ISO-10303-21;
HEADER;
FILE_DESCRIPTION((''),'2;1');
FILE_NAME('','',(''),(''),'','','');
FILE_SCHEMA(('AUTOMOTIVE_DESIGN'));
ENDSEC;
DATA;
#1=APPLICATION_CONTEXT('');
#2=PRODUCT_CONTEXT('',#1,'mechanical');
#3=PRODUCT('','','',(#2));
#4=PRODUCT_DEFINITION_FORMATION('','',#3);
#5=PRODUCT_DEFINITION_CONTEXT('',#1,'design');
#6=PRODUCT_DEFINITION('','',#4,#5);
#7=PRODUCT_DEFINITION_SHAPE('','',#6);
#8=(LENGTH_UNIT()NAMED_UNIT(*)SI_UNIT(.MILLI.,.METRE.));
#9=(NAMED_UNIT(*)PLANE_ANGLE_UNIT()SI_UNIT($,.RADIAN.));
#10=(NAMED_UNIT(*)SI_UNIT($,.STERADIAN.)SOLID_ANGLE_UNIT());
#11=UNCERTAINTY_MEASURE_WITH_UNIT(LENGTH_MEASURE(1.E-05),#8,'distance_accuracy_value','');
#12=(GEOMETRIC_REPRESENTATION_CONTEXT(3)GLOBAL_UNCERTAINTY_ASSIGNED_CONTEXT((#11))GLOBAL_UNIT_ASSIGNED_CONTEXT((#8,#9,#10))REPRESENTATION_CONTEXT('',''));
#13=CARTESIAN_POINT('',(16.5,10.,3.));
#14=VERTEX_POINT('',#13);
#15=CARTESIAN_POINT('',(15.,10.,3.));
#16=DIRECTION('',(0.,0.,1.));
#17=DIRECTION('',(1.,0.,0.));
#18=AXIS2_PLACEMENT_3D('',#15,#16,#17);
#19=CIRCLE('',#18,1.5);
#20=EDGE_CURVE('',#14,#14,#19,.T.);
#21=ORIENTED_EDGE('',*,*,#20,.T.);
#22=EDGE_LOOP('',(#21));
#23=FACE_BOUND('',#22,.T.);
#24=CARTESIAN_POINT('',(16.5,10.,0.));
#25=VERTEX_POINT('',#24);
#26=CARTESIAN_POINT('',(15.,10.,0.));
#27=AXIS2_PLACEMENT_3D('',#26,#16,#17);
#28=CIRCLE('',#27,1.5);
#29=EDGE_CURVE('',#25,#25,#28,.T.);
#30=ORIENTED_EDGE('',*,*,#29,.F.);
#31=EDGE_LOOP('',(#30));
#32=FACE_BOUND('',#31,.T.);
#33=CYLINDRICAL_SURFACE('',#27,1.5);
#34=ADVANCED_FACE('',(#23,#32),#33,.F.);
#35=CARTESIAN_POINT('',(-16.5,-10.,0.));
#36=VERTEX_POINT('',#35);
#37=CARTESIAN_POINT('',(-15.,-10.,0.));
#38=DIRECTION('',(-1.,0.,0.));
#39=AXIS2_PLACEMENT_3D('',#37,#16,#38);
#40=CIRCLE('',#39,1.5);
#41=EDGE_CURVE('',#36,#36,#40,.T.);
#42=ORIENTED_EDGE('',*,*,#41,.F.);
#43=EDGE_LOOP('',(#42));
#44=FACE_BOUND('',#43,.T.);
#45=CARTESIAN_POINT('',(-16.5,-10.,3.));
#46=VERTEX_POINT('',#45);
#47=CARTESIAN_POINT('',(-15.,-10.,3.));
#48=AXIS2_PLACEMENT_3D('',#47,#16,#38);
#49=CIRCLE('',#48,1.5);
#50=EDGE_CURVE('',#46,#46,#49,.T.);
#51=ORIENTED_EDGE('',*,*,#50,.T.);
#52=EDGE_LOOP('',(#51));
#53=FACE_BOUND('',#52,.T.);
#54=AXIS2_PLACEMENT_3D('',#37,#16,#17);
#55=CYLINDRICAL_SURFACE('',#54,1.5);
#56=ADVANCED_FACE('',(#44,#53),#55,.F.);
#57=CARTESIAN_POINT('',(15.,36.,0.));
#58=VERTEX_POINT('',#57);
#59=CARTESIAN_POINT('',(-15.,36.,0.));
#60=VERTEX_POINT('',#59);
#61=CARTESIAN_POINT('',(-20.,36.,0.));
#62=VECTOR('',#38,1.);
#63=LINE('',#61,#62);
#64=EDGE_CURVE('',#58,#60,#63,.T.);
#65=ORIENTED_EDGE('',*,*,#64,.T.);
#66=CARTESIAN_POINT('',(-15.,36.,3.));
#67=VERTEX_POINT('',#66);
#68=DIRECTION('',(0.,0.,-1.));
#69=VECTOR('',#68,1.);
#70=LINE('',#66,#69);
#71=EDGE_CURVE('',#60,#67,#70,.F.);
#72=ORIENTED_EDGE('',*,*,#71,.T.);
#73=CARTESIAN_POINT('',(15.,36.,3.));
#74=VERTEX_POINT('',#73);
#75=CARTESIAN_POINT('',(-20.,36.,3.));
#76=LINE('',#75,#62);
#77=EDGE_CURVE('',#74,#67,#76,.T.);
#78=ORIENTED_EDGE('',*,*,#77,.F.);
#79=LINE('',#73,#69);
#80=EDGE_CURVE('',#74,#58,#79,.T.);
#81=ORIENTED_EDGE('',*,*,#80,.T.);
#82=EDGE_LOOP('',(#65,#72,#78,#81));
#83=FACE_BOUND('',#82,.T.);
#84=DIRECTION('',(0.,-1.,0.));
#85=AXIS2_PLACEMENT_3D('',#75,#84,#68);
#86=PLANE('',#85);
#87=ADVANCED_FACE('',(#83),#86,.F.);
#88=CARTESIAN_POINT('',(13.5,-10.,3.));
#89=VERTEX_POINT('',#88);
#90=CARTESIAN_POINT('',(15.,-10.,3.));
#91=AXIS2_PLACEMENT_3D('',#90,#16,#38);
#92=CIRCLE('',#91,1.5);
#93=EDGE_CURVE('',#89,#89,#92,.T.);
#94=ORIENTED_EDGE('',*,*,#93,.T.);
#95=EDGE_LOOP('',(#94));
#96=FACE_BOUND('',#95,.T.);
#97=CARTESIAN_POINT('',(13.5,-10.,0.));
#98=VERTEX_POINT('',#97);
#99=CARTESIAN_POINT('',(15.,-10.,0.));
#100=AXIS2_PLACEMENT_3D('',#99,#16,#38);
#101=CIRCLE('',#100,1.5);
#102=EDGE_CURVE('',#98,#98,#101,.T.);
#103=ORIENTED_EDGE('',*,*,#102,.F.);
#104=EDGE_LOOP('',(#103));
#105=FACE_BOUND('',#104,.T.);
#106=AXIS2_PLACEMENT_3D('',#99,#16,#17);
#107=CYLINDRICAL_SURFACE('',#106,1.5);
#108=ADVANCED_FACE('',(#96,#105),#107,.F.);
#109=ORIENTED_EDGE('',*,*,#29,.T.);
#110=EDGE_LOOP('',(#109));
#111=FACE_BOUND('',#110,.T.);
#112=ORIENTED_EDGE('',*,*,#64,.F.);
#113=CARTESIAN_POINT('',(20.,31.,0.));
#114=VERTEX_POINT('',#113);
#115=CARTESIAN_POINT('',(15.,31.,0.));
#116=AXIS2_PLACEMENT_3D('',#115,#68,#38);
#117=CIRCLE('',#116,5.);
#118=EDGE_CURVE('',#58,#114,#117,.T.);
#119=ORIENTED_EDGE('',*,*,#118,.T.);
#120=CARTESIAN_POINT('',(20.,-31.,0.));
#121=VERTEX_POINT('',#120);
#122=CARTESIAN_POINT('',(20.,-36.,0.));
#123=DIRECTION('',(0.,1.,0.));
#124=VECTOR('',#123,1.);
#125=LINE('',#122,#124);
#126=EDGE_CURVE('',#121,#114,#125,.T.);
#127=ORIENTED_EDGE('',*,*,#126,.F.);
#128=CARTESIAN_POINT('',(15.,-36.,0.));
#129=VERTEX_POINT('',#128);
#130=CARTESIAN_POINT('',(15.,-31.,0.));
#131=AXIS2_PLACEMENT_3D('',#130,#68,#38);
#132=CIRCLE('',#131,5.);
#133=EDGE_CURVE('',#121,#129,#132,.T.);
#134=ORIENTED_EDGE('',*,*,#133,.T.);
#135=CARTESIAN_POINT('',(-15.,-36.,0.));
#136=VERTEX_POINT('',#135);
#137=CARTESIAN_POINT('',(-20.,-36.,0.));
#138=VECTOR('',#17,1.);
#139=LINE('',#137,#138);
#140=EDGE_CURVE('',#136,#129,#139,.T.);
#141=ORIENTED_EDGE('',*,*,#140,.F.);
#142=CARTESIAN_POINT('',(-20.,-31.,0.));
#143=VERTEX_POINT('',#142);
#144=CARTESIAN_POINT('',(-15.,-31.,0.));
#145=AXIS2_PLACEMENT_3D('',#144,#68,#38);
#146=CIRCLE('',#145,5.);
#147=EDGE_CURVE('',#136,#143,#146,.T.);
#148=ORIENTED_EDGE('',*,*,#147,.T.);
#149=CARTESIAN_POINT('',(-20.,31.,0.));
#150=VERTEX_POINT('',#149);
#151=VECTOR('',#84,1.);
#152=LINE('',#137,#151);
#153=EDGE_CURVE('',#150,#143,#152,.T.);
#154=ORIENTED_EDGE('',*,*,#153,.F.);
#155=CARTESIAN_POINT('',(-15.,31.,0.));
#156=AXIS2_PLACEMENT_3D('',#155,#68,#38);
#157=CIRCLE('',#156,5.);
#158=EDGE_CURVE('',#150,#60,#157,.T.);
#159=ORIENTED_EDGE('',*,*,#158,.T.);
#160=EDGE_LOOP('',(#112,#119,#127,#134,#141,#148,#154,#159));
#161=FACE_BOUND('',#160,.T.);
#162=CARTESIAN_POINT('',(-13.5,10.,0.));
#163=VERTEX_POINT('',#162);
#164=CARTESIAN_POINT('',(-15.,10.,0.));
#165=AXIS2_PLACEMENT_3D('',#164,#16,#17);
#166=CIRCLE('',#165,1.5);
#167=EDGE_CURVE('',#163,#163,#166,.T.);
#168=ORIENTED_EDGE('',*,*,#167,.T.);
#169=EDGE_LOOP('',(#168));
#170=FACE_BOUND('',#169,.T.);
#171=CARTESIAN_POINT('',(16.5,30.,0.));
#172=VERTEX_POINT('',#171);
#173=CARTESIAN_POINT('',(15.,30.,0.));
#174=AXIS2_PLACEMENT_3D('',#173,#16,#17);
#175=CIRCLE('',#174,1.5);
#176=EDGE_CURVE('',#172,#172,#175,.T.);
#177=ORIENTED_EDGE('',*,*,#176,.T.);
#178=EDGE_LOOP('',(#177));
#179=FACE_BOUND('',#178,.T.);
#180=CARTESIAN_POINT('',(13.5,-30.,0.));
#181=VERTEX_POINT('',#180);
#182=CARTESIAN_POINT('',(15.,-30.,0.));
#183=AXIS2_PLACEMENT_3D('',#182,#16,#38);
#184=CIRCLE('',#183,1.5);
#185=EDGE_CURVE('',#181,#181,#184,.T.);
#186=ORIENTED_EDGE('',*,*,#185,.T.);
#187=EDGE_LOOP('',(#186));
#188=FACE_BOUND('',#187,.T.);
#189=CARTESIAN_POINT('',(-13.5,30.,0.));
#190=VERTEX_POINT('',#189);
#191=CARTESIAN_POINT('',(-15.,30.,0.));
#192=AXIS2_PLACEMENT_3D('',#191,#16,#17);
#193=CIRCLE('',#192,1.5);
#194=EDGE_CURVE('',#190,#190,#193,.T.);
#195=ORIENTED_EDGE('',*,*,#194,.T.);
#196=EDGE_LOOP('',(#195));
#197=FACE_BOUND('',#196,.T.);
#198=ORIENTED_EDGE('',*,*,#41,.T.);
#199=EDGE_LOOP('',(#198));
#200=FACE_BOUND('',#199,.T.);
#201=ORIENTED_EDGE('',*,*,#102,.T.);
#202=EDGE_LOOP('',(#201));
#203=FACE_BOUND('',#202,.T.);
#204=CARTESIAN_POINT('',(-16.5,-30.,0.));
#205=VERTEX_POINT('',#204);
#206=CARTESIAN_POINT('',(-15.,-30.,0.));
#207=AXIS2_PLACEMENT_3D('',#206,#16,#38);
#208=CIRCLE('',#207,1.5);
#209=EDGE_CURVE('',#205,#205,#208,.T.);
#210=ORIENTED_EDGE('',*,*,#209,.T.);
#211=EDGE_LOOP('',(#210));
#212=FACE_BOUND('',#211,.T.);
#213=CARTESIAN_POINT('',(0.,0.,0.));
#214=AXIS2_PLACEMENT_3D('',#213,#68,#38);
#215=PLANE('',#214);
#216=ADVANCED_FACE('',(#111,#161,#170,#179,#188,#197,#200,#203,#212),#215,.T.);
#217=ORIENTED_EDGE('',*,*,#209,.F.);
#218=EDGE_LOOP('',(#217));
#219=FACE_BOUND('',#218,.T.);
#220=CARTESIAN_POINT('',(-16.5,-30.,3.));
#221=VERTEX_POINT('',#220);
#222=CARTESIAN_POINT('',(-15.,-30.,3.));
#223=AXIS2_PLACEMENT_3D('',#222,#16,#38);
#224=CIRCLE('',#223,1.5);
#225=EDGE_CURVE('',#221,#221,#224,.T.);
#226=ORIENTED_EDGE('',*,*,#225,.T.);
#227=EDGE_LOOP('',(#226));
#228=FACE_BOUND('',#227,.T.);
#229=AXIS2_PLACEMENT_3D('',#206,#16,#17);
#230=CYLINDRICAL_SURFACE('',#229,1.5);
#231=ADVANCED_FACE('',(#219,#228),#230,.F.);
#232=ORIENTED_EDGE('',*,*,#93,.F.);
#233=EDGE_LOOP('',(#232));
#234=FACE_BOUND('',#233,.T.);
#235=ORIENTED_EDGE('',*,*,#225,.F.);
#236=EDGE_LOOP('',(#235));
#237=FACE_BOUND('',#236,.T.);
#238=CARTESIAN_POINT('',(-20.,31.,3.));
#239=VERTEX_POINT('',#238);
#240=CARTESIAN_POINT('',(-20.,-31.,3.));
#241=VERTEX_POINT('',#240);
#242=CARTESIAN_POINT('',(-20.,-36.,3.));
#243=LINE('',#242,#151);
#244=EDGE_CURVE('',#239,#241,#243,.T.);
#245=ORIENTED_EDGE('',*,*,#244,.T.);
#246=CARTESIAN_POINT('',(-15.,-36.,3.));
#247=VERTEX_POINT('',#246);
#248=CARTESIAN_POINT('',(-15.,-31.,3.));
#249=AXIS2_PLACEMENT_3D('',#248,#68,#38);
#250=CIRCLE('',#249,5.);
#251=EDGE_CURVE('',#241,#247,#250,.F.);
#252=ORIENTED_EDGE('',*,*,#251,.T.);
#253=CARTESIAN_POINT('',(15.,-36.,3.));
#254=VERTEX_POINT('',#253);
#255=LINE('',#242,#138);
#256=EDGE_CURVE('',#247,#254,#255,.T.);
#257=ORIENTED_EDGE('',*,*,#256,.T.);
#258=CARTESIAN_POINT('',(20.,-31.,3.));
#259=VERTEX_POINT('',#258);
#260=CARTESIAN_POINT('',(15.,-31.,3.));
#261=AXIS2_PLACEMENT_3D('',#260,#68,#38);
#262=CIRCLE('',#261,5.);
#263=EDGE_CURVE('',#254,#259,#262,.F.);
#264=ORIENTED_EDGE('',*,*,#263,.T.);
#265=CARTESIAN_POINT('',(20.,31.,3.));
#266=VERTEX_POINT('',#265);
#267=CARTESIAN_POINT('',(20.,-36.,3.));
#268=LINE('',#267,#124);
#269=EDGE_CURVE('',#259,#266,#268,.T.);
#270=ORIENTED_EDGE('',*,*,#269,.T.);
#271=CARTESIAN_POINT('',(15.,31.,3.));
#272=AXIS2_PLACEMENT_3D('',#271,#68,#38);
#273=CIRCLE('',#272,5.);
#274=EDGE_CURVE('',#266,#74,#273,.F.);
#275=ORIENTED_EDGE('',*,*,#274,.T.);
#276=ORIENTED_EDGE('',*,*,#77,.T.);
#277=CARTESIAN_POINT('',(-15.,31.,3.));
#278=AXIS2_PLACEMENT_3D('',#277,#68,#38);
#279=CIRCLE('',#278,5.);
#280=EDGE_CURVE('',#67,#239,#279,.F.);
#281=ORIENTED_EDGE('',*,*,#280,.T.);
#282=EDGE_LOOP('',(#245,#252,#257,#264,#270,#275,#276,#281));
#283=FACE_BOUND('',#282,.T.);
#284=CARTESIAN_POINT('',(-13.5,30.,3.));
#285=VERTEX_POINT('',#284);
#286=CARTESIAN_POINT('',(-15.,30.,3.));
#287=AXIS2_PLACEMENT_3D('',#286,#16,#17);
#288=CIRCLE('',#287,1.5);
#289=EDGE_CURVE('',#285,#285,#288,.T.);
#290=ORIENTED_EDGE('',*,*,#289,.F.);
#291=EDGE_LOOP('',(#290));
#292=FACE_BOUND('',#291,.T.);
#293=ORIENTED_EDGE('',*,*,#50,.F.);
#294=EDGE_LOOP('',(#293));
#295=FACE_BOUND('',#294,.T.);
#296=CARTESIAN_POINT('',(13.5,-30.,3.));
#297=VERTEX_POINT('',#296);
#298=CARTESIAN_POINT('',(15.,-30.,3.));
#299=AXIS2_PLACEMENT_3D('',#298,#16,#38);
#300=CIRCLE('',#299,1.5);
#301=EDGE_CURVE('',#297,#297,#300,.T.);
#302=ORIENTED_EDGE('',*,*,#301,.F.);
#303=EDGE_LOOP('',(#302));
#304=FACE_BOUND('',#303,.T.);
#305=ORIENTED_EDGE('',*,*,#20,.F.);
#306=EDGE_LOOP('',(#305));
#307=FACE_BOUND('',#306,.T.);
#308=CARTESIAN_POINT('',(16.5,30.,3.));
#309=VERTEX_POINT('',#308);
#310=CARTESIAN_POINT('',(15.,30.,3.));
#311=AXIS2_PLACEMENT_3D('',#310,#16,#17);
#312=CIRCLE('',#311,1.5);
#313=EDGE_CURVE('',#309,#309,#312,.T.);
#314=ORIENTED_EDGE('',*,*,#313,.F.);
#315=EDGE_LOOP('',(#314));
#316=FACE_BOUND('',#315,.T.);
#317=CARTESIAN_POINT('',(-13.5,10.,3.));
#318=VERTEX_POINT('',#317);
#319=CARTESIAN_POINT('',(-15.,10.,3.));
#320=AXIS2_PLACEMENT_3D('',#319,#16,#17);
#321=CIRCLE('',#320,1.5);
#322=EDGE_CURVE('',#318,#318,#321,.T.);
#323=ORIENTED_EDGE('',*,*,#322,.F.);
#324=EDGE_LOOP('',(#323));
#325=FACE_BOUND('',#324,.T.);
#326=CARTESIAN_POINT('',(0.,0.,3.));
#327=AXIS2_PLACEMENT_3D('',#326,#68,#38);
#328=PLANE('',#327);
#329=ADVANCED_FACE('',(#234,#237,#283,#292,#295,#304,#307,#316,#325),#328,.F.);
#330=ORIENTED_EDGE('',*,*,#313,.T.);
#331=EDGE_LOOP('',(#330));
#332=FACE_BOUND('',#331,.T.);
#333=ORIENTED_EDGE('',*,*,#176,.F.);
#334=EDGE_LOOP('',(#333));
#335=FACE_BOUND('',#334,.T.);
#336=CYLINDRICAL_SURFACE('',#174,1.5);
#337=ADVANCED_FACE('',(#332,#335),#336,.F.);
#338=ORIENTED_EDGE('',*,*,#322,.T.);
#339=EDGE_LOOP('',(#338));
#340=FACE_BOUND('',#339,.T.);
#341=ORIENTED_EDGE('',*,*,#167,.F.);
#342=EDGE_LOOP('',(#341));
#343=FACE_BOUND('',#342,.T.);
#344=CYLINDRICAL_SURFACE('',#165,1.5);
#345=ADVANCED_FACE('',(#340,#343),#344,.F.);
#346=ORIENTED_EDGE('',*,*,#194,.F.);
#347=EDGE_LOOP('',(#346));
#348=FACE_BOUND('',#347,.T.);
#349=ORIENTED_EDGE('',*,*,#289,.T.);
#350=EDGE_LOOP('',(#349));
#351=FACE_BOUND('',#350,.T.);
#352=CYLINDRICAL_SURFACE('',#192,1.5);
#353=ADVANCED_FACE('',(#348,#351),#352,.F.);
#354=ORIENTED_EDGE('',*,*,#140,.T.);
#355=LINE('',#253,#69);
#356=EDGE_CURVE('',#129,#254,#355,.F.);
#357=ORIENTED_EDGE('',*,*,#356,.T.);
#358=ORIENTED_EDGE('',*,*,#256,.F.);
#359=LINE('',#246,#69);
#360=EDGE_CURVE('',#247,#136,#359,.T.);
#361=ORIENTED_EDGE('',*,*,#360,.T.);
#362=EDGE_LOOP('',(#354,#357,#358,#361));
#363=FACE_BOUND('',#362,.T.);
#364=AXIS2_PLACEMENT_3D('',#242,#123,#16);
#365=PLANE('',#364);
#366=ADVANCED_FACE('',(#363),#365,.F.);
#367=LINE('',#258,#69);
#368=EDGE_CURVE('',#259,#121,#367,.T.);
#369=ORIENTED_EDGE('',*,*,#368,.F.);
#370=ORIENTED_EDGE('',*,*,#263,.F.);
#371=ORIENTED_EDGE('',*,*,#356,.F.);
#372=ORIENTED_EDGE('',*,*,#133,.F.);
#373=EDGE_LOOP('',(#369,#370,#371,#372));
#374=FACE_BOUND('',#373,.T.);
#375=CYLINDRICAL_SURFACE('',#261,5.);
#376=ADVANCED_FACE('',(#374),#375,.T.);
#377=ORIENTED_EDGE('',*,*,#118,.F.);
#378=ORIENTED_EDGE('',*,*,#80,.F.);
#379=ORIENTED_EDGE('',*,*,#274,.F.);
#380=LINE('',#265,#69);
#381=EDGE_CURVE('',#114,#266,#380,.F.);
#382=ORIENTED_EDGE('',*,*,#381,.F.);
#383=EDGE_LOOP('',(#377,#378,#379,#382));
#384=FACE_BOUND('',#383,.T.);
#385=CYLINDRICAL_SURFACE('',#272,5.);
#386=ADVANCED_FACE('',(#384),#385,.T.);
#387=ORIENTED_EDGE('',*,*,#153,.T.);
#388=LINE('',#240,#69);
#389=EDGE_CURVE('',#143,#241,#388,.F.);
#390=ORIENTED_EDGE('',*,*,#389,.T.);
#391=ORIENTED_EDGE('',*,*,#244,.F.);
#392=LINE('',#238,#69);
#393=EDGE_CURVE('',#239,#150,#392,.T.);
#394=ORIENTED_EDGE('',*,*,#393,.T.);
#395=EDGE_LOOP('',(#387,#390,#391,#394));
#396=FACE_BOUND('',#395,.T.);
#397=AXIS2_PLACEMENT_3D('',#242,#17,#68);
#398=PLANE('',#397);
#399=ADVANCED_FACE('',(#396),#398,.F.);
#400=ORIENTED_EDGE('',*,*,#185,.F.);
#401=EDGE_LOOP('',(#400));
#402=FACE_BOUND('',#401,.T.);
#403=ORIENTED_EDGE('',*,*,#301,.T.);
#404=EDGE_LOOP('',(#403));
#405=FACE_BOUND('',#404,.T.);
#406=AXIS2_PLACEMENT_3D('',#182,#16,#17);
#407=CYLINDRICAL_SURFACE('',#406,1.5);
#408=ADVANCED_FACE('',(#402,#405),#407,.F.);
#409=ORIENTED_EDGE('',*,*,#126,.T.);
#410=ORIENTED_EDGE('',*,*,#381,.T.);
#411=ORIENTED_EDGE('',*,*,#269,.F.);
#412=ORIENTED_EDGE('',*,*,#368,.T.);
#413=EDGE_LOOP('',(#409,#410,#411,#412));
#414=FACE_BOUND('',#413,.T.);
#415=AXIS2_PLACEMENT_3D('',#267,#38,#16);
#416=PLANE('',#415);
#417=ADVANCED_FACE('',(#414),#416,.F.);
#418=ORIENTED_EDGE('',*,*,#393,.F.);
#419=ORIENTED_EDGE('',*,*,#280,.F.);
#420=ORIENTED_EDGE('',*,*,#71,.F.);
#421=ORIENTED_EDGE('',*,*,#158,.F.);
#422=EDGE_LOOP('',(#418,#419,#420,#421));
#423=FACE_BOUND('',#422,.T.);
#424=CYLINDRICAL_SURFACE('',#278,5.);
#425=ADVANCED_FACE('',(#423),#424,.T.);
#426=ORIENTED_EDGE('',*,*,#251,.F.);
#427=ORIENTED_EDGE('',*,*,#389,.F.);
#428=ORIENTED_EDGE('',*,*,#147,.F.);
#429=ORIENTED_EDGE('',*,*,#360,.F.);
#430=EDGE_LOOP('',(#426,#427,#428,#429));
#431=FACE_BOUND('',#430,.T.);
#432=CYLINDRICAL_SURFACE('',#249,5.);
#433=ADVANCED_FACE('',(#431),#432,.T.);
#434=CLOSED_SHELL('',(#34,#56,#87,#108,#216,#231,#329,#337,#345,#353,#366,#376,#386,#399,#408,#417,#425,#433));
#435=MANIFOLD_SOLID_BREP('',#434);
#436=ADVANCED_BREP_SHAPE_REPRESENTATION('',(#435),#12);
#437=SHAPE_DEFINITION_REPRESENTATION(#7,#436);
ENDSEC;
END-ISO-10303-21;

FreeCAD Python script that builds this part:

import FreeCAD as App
import Part
import Sketcher
Q = App.Units.Quantity


def edges_at(feature, points):
    """Names of the edges that pass closest to the given points."""
    edges = feature.Shape.Edges
    near = lambda p: min(range(len(edges)), key=lambda i: edges[i].distToShape(Part.Vertex(*p))[0])
    return sorted({f"Edge{near(p) + 1}" for p in points})

doc = App.newDocument("Part")
body = doc.addObject("PartDesign::Body", "Body")

# Sketch on XY plane
sketch1 = body.newObject("Sketcher::SketchObject", "Sketch")
sketch1.AttachmentSupport = (doc.getObject("XY_Plane"), [""])
sketch1.MapMode = "FlatFace"
sketch1.addGeometry(Part.LineSegment(App.Vector(-20, 36, 0), App.Vector(-20, -36, 0)), False)
sketch1.addGeometry(Part.LineSegment(App.Vector(-20, -36, 0), App.Vector(20, -36, 0)), False)
sketch1.addGeometry(Part.LineSegment(App.Vector(20, -36, 0), App.Vector(20, 36, 0)), False)
sketch1.addGeometry(Part.LineSegment(App.Vector(20, 36, 0), App.Vector(-20, 36, 0)), False)
sketch1.addConstraint(Sketcher.Constraint("Coincident", 0, 2, 1, 1))
sketch1.addConstraint(Sketcher.Constraint("Coincident", 1, 2, 2, 1))
sketch1.addConstraint(Sketcher.Constraint("Coincident", 2, 2, 3, 1))
sketch1.addConstraint(Sketcher.Constraint("Coincident", 3, 2, 0, 1))
sketch1.addConstraint(Sketcher.Constraint("Vertical", 0))
sketch1.addConstraint(Sketcher.Constraint("Horizontal", 1))
sketch1.addConstraint(Sketcher.Constraint("Vertical", 2))
sketch1.addConstraint(Sketcher.Constraint("Horizontal", 3))
sketch1.addConstraint(Sketcher.Constraint("Symmetric", 0, 2, 2, 2, -1, 1))
sketch1.addConstraint(Sketcher.Constraint("DistanceX", 1, 1, 1, 2, Q("40 mm")))
sketch1.addConstraint(Sketcher.Constraint("DistanceY", 0, 2, 0, 1, Q("72 mm")))
pad1 = body.newObject("PartDesign::Pad", "Pad")
pad1.Profile = sketch1
pad1.Length = 3

# Sketch on XY plane
sketch2 = body.newObject("Sketcher::SketchObject", "Sketch001")
sketch2.AttachmentSupport = (doc.getObject("XY_Plane"), [""])
sketch2.MapMode = "FlatFace"
sketch2.AttachmentOffset = App.Placement(App.Vector(0, 0, 3), App.Rotation())
sketch2.addGeometry(Part.Circle(App.Vector(-15, 30, 0), App.Vector(0, 0, 1), 1.5), False)
sketch2.addGeometry(Part.Circle(App.Vector(-15, 10, 0), App.Vector(0, 0, 1), 1.5), False)
sketch2.addGeometry(Part.Circle(App.Vector(15, 30, 0), App.Vector(0, 0, 1), 1.5), False)
sketch2.addGeometry(Part.Circle(App.Vector(15, 10, 0), App.Vector(0, 0, 1), 1.5), False)
sketch2.addGeometry(Part.Circle(App.Vector(-15, -10, 0), App.Vector(0, 0, 1), 1.5), False)
sketch2.addGeometry(Part.Circle(App.Vector(15, -10, 0), App.Vector(0, 0, 1), 1.5), False)
sketch2.addGeometry(Part.Circle(App.Vector(15, -30, 0), App.Vector(0, 0, 1), 1.5), False)
sketch2.addGeometry(Part.Circle(App.Vector(-15, -30, 0), App.Vector(0, 0, 1), 1.5), False)
sketch2.addConstraint(Sketcher.Constraint("Equal", 0, 1))
sketch2.addConstraint(Sketcher.Constraint("Equal", 1, 2))
sketch2.addConstraint(Sketcher.Constraint("Equal", 2, 3))
sketch2.addConstraint(Sketcher.Constraint("Equal", 3, 4))
sketch2.addConstraint(Sketcher.Constraint("Equal", 4, 5))
sketch2.addConstraint(Sketcher.Constraint("Equal", 5, 6))
sketch2.addConstraint(Sketcher.Constraint("Equal", 6, 7))
sketch2.addConstraint(Sketcher.Constraint("Symmetric", 3, 3, 4, 3, -1, 1))
sketch2.addConstraint(Sketcher.Constraint("Symmetric", 1, 3, 5, 3, -1, 1))
sketch2.addConstraint(Sketcher.Constraint("Symmetric", 0, 3, 6, 3, -1, 1))
sketch2.addConstraint(Sketcher.Constraint("Symmetric", 2, 3, 7, 3, -1, 1))
sketch2.addConstraint(Sketcher.Constraint("Symmetric", 0, 3, 2, 3, -2))
sketch2.addConstraint(Sketcher.Constraint("Symmetric", 1, 3, 3, 3, -2))
sketch2.addConstraint(Sketcher.Constraint("Vertical", 0, 3, 1, 3))
sketch2.addConstraint(Sketcher.Constraint("Diameter", 0, Q("3 mm")))
sketch2.addConstraint(Sketcher.Constraint("DistanceX", 0, 3, -1, 1, Q("15 mm")))
sketch2.addConstraint(Sketcher.Constraint("DistanceY", -1, 1, 0, 3, Q("30 mm")))
sketch2.addConstraint(Sketcher.Constraint("DistanceY", -1, 1, 1, 3, Q("10 mm")))
pocket1 = body.newObject("PartDesign::Pocket", "Pocket")
pocket1.Profile = sketch2
pocket1.Length = 3
doc.recompute()

fillet = body.newObject("PartDesign::Fillet", "Fillet")
fillet.Base = (pocket1, edges_at(pocket1, [
    (20, -36, 1.5),
    (-20, -36, 1.5),
    (-20, 36, 1.5),
    (20, 36, 1.5),
]))
fillet.Radius = 5

doc.recompute()
